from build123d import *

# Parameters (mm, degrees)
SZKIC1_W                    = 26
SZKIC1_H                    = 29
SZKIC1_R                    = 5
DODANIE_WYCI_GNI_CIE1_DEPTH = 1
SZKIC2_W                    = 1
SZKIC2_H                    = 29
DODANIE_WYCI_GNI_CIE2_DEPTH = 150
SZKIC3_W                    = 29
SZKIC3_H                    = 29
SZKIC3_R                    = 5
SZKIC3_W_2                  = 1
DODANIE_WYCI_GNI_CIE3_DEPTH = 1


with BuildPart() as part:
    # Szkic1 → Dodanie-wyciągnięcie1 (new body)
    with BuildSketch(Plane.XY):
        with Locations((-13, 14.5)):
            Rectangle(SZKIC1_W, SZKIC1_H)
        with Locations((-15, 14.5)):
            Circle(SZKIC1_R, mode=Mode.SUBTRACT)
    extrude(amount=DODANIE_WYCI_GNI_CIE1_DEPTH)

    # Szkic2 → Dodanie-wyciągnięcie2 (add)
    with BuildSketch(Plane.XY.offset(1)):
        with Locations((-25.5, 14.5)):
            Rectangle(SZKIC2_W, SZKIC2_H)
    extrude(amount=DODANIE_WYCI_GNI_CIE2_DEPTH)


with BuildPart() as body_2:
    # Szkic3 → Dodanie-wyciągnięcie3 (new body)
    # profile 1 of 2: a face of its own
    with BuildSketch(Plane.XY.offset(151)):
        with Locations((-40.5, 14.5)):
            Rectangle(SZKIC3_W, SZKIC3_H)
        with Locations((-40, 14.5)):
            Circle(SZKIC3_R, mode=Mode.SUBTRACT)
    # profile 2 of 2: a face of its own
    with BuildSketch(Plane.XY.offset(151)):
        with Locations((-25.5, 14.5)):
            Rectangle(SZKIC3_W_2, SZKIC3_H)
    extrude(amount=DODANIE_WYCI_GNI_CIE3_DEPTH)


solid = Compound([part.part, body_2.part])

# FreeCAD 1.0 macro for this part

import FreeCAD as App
import Part
import Sketcher
Q = App.Units.Quantity

doc = App.newDocument("Part")
body = doc.addObject("PartDesign::Body", "Body")

sketch1 = body.newObject("Sketcher::SketchObject", "Sketch")
sketch1.AttachmentSupport = (doc.getObject("XY_Plane"), [""])
sketch1.MapMode = "FlatFace"
sketch1.addGeometry([
    Part.LineSegment(App.Vector(-26, 29, 0), App.Vector(-26, 0, 0)),
    Part.LineSegment(App.Vector(-26, 0, 0), App.Vector(0, 0, 0)),
    Part.LineSegment(App.Vector(0, 0, 0), App.Vector(0, 29, 0)),
    Part.LineSegment(App.Vector(0, 29, 0), App.Vector(-26, 29, 0)),
    Part.Circle(App.Vector(-15, 14.5, 0), App.Vector(0, 0, 1), 5),
], False)
sketch1.addConstraint([
    Sketcher.Constraint("Coincident", 0, 2, 1, 1),
    Sketcher.Constraint("Coincident", 1, 2, 2, 1),
    Sketcher.Constraint("Coincident", 2, 2, 3, 1),
    Sketcher.Constraint("Coincident", 3, 2, 0, 1),
    Sketcher.Constraint("Vertical", 0),
    Sketcher.Constraint("Horizontal", 1),
    Sketcher.Constraint("Vertical", 2),
    Sketcher.Constraint("Horizontal", 3),
    Sketcher.Constraint("Coincident", 1, 2, -1, 1),
    Sketcher.Constraint("Diameter", 4, Q("10 mm")),
    Sketcher.Constraint("DistanceX", 1, 1, 1, 2, Q("26 mm")),
    Sketcher.Constraint("DistanceY", 0, 2, 0, 1, Q("29 mm")),
    Sketcher.Constraint("DistanceX", 4, 3, -1, 1, Q("15 mm")),
    Sketcher.Constraint("DistanceY", -1, 1, 4, 3, Q("14.5 mm")),
])
pad1 = body.newObject("PartDesign::Pad", "Pad")
pad1.Profile = sketch1
pad1.Length = 1

sketch2 = body.newObject("Sketcher::SketchObject", "Sketch001")
sketch2.AttachmentSupport = (doc.getObject("XY_Plane"), [""])
sketch2.MapMode = "FlatFace"
sketch2.AttachmentOffset = App.Placement(App.Vector(0, 0, 1), App.Rotation())
sketch2.addGeometry([
    Part.LineSegment(App.Vector(-26, 29, 0), App.Vector(-26, 0, 0)),
    Part.LineSegment(App.Vector(-26, 0, 0), App.Vector(-25, 0, 0)),
    Part.LineSegment(App.Vector(-25, 0, 0), App.Vector(-25, 29, 0)),
    Part.LineSegment(App.Vector(-25, 29, 0), App.Vector(-26, 29, 0)),
], False)
sketch2.addConstraint([
    Sketcher.Constraint("Coincident", 0, 2, 1, 1),
    Sketcher.Constraint("Coincident", 1, 2, 2, 1),
    Sketcher.Constraint("Coincident", 2, 2, 3, 1),
    Sketcher.Constraint("Coincident", 3, 2, 0, 1),
    Sketcher.Constraint("Vertical", 0),
    Sketcher.Constraint("Horizontal", 1),
    Sketcher.Constraint("Vertical", 2),
    Sketcher.Constraint("Horizontal", 3),
    Sketcher.Constraint("PointOnObject", 0, 2, -1),
    Sketcher.Constraint("DistanceX", 1, 1, 1, 2, Q("1 mm")),
    Sketcher.Constraint("DistanceY", 0, 2, 0, 1, Q("29 mm")),
    Sketcher.Constraint("DistanceX", 0, 2, -1, 1, Q("26 mm")),
])
pad2 = body.newObject("PartDesign::Pad", "Pad001")
pad2.Profile = sketch2
pad2.Length = 150
body2 = doc.addObject("PartDesign::Body", "Body001")

sketch3 = body2.newObject("Sketcher::SketchObject", "Sketch002")
sketch3.AttachmentSupport = (doc.getObject("XY_Plane001"), [""])
sketch3.MapMode = "FlatFace"
sketch3.AttachmentOffset = App.Placement(App.Vector(0, 0, 151), App.Rotation())
sketch3.addGeometry([
    Part.LineSegment(App.Vector(-55, 29, 0), App.Vector(-55, 0, 0)),
    Part.LineSegment(App.Vector(-55, 0, 0), App.Vector(-25, 0, 0)),
    Part.LineSegment(App.Vector(-25, 0, 0), App.Vector(-25, 29, 0)),
    Part.LineSegment(App.Vector(-25, 29, 0), App.Vector(-55, 29, 0)),
    Part.Circle(App.Vector(-40, 14.5, 0), App.Vector(0, 0, 1), 5),
], False)
sketch3.addConstraint([
    Sketcher.Constraint("Coincident", 0, 2, 1, 1),
    Sketcher.Constraint("Coincident", 1, 2, 2, 1),
    Sketcher.Constraint("Coincident", 2, 2, 3, 1),
    Sketcher.Constraint("Coincident", 3, 2, 0, 1),
    Sketcher.Constraint("Vertical", 0),
    Sketcher.Constraint("Horizontal", 1),
    Sketcher.Constraint("Vertical", 2),
    Sketcher.Constraint("Horizontal", 3),
    Sketcher.Constraint("PointOnObject", 0, 2, -1),
    Sketcher.Constraint("Diameter", 4, Q("10 mm")),
    Sketcher.Constraint("DistanceX", 1, 1, 1, 2, Q("30 mm")),
    Sketcher.Constraint("DistanceY", 0, 2, 0, 1, Q("29 mm")),
    Sketcher.Constraint("DistanceX", 4, 3, -1, 1, Q("40 mm")),
    Sketcher.Constraint("DistanceX", 0, 2, -1, 1, Q("55 mm")),
    Sketcher.Constraint("DistanceY", -1, 1, 4, 3, Q("14.5 mm")),
])
pad3 = body2.newObject("PartDesign::Pad", "Pad002")
pad3.Profile = sketch3
pad3.Length = 1

doc.recompute()
